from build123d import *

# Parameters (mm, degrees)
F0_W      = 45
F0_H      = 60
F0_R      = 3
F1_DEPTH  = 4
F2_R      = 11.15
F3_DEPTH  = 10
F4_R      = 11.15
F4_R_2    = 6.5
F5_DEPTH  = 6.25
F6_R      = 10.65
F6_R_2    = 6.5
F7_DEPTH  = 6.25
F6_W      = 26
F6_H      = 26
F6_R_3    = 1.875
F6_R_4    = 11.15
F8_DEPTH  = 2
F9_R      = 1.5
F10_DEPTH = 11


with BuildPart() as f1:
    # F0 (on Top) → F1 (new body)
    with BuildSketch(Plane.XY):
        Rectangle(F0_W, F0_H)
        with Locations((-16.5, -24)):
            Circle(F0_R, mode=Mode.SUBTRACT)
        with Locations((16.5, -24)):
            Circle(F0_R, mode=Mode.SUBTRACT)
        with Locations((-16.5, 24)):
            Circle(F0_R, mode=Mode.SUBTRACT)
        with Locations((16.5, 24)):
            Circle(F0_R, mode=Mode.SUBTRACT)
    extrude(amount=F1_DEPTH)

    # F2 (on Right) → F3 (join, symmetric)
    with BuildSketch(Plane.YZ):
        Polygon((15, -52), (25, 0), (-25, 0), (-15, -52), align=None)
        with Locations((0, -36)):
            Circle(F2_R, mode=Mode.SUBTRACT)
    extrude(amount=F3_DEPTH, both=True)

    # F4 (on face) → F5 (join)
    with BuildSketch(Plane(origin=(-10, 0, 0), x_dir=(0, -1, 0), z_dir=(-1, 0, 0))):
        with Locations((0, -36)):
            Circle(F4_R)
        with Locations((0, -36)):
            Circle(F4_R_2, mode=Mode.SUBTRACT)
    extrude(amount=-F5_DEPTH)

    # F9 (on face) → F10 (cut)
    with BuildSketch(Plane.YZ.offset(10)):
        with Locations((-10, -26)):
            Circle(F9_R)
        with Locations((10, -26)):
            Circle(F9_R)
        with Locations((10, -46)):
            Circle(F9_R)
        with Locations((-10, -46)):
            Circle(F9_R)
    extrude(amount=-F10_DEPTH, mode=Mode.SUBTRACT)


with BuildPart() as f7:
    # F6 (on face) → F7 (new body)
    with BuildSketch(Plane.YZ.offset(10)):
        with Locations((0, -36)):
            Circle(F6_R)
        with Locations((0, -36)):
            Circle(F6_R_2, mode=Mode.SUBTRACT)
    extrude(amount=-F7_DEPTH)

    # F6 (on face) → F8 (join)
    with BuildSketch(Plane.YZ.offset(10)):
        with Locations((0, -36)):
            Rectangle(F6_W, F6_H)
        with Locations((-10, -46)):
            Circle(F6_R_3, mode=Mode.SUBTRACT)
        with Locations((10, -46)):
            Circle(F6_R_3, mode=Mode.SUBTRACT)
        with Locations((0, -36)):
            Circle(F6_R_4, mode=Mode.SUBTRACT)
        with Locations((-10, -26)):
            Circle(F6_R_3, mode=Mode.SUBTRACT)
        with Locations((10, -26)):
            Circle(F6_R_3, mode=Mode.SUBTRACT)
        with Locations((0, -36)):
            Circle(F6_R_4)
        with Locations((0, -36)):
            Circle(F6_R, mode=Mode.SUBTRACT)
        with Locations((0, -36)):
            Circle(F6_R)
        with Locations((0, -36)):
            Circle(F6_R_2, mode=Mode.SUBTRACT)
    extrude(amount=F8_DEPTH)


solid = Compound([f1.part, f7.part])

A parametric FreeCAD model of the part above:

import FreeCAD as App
import Part
import Sketcher
Q = App.Units.Quantity


def add_polygon(sketch, points):
    """Adds a closed chain of lines whose ends are joined by coincident constraints."""
    first, n = sketch.GeometryCount, len(points)
    for a, b in zip(points, points[1:] + points[:1]):
        sketch.addGeometry(Part.LineSegment(App.Vector(*a, 0), App.Vector(*b, 0)), False)
    for i in range(n):
        sketch.addConstraint(Sketcher.Constraint("Coincident", first + i, 2, first + (i + 1) % n, 1))

doc = App.newDocument("Part")
body = doc.addObject("PartDesign::Body", "Body")

# Sketch on XY plane
sketch1 = body.newObject("Sketcher::SketchObject", "Sketch")
sketch1.AttachmentSupport = (doc.getObject("XY_Plane"), [""])
sketch1.MapMode = "FlatFace"
add_polygon(sketch1, [(-22.5, 30), (-22.5, -30), (22.5, -30), (22.5, 30)])  # lines 0-3
sketch1.addGeometry(Part.Circle(App.Vector(-16.5, -24, 0), App.Vector(0, 0, 1), 3), False)  # 4
sketch1.addGeometry(Part.Circle(App.Vector(16.5, -24, 0), App.Vector(0, 0, 1), 3), False)  # 5
sketch1.addGeometry(Part.Circle(App.Vector(-16.5, 24, 0), App.Vector(0, 0, 1), 3), False)  # 6
sketch1.addGeometry(Part.Circle(App.Vector(16.5, 24, 0), App.Vector(0, 0, 1), 3), False)  # 7
sketch1.addConstraint([
    Sketcher.Constraint("Vertical", 0),
    Sketcher.Constraint("Horizontal", 1),
    Sketcher.Constraint("Vertical", 2),
    Sketcher.Constraint("Horizontal", 3),
    Sketcher.Constraint("Equal", 4, 5),
    Sketcher.Constraint("Equal", 5, 6),
    Sketcher.Constraint("Equal", 6, 7),
    Sketcher.Constraint("Symmetric", 5, 3, 6, 3, -1, 1),
    Sketcher.Constraint("Symmetric", 4, 3, 7, 3, -1, 1),
    Sketcher.Constraint("Symmetric", 0, 2, 2, 2, -1, 1),
    Sketcher.Constraint("Symmetric", 4, 3, 5, 3, -2),
    Sketcher.Constraint("Diameter", 4, Q("6 mm")),
    Sketcher.Constraint("DistanceX", 1, 1, 1, 2, Q("45 mm")),
    Sketcher.Constraint("DistanceY", 0, 2, 0, 1, Q("60 mm")),
    Sketcher.Constraint("DistanceY", 4, 3, -1, 1, Q("24 mm")),
    Sketcher.Constraint("DistanceX", 4, 3, 5, 3, Q("33 mm")),
])
pad1 = body.newObject("PartDesign::Pad", "Pad")
pad1.Profile = sketch1
pad1.Length = 4

# Sketch on YZ plane
sketch2 = body.newObject("Sketcher::SketchObject", "Sketch001")
sketch2.AttachmentSupport = (doc.getObject("YZ_Plane"), [""])
sketch2.MapMode = "FlatFace"
add_polygon(sketch2, [(15, -52), (25, 0), (-25, 0), (-15, -52)])  # lines 0-3
sketch2.addGeometry(Part.Circle(App.Vector(0, -36, 0), App.Vector(0, 0, 1), 11.15), False)  # 4
sketch2.addConstraint([
    Sketcher.Constraint("Horizontal", 1),
    Sketcher.Constraint("Horizontal", 3),
    Sketcher.Constraint("Symmetric", 0, 2, 1, 2, -1, 1),
    Sketcher.Constraint("PointOnObject", 4, 3, -2),
    Sketcher.Constraint("Equal", 0, 2),
    Sketcher.Constraint("Diameter", 4, Q("22.3 mm")),
    Sketcher.Constraint("DistanceX", 1, 2, 1, 1, Q("50 mm")),
    Sketcher.Constraint("DistanceX", 3, 1, 3, 2, Q("30 mm")),
    Sketcher.Constraint("DistanceY", 4, 3, -1, 1, Q("36 mm")),
    Sketcher.Constraint("DistanceY", 2, 2, -1, 1, Q("52 mm")),
])
pad2 = body.newObject("PartDesign::Pad", "Pad001")
pad2.Profile = sketch2
pad2.Length = 20
pad2.Midplane = True

# Sketch on YZ plane
sketch3 = body.newObject("Sketcher::SketchObject", "Sketch002")
sketch3.AttachmentSupport = (doc.getObject("YZ_Plane"), [""])
sketch3.MapMode = "FlatFace"
sketch3.AttachmentOffset = App.Placement(App.Vector(0, 0, -10), App.Rotation())
sketch3.addGeometry([
    Part.Circle(App.Vector(0, -36, 0), App.Vector(0, 0, 1), 11.15),
    Part.Circle(App.Vector(0, -36, 0), App.Vector(0, 0, 1), 6.5),
], False)
sketch3.addConstraint([
    Sketcher.Constraint("Coincident", 1, 3, 0, 3),
    Sketcher.Constraint("PointOnObject", 0, 3, -2),
    Sketcher.Constraint("Diameter", 1, Q("13 mm")),
    Sketcher.Constraint("Diameter", 0, Q("22.3 mm")),
    Sketcher.Constraint("DistanceY", 0, 3, -1, 1, Q("36 mm")),
])
pad3 = body.newObject("PartDesign::Pad", "Pad002")
pad3.Profile = sketch3
pad3.Length = 6.25

# Sketch on YZ plane
sketch4 = body.newObject("Sketcher::SketchObject", "Sketch003")
sketch4.AttachmentSupport = (doc.getObject("YZ_Plane"), [""])
sketch4.MapMode = "FlatFace"
sketch4.AttachmentOffset = App.Placement(App.Vector(0, 0, 10), App.Rotation())
sketch4.addGeometry([
    Part.Circle(App.Vector(-10, -26, 0), App.Vector(0, 0, 1), 1.5),
    Part.Circle(App.Vector(10, -26, 0), App.Vector(0, 0, 1), 1.5),
    Part.Circle(App.Vector(10, -46, 0), App.Vector(0, 0, 1), 1.5),
    Part.Circle(App.Vector(-10, -46, 0), App.Vector(0, 0, 1), 1.5),
], False)
sketch4.addConstraint([
    Sketcher.Constraint("Equal", 0, 1),
    Sketcher.Constraint("Equal", 1, 2),
    Sketcher.Constraint("Equal", 2, 3),
    Sketcher.Constraint("Symmetric", 0, 3, 1, 3, -2),
    Sketcher.Constraint("Symmetric", 2, 3, 3, 3, -2),
    Sketcher.Constraint("Vertical", 1, 3, 2, 3),
    Sketcher.Constraint("Diameter", 0, Q("3 mm")),
    Sketcher.Constraint("DistanceX", 0, 3, -1, 1, Q("10 mm")),
    Sketcher.Constraint("DistanceY", 0, 3, -1, 1, Q("26 mm")),
    Sketcher.Constraint("DistanceY", 2, 3, -1, 1, Q("46 mm")),
])
pocket1 = body.newObject("PartDesign::Pocket", "Pocket")
pocket1.Profile = sketch4
pocket1.Length = 11
body2 = doc.addObject("PartDesign::Body", "Body001")

# Sketch on YZ plane
sketch5 = body2.newObject("Sketcher::SketchObject", "Sketch004")
sketch5.AttachmentSupport = (doc.getObject("YZ_Plane001"), [""])
sketch5.MapMode = "FlatFace"
sketch5.AttachmentOffset = App.Placement(App.Vector(0, 0, 10), App.Rotation())
sketch5.addGeometry([
    Part.Circle(App.Vector(0, -36, 0), App.Vector(0, 0, 1), 10.65),
    Part.Circle(App.Vector(0, -36, 0), App.Vector(0, 0, 1), 6.5),
], False)
sketch5.addConstraint([
    Sketcher.Constraint("Coincident", 1, 3, 0, 3),
    Sketcher.Constraint("PointOnObject", 0, 3, -2),
    Sketcher.Constraint("Diameter", 1, Q("13 mm")),
    Sketcher.Constraint("Diameter", 0, Q("21.3 mm")),
    Sketcher.Constraint("DistanceY", 0, 3, -1, 1, Q("36 mm")),
])
pad4 = body2.newObject("PartDesign::Pad", "Pad003")
pad4.Profile = sketch5
pad4.Length = 6.25
pad4.Reversed = True

# Sketch on YZ plane
sketch6 = body2.newObject("Sketcher::SketchObject", "Sketch005")
sketch6.AttachmentSupport = (doc.getObject("YZ_Plane001"), [""])
sketch6.MapMode = "FlatFace"
sketch6.AttachmentOffset = App.Placement(App.Vector(0, 0, 10), App.Rotation())
add_polygon(sketch6, [(-13, -23), (-13, -49), (13, -49), (13, -23)])  # lines 0-3
sketch6.addGeometry(Part.Circle(App.Vector(-10, -46, 0), App.Vector(0, 0, 1), 1.875), False)  # 4
sketch6.addGeometry(Part.Circle(App.Vector(10, -46, 0), App.Vector(0, 0, 1), 1.875), False)  # 5
sketch6.addGeometry(Part.Circle(App.Vector(-10, -26, 0), App.Vector(0, 0, 1), 1.875), False)  # 6
sketch6.addGeometry(Part.Circle(App.Vector(0, -36, 0), App.Vector(0, 0, 1), 6.5), False)  # 7
sketch6.addGeometry(Part.Circle(App.Vector(10, -26, 0), App.Vector(0, 0, 1), 1.875), False)  # 8
sketch6.addConstraint([
    Sketcher.Constraint("Vertical", 0),
    Sketcher.Constraint("Horizontal", 1),
    Sketcher.Constraint("Vertical", 2),
    Sketcher.Constraint("Horizontal", 3),
    Sketcher.Constraint("Equal", 4, 5),
    Sketcher.Constraint("Equal", 5, 6),
    Sketcher.Constraint("Equal", 6, 8),
    Sketcher.Constraint("Symmetric", 4, 3, 5, 3, -2),
    Sketcher.Constraint("Symmetric", 6, 3, 8, 3, -2),
    Sketcher.Constraint("PointOnObject", 7, 3, -2),
    Sketcher.Constraint("Vertical", 4, 3, 6, 3),
    Sketcher.Constraint("Equal", 3, 0),
    Sketcher.Constraint("Diameter", 7, Q("13 mm")),
    Sketcher.Constraint("Diameter", 4, Q("3.75 mm")),
    Sketcher.Constraint("DistanceX", 1, 1, 1, 2, Q("26 mm")),
    Sketcher.Constraint("DistanceX", 4, 3, -1, 1, Q("10 mm")),
    Sketcher.Constraint("DistanceY", 4, 3, -1, 1, Q("46 mm")),
    Sketcher.Constraint("DistanceY", 6, 3, -1, 1, Q("26 mm")),
    Sketcher.Constraint("DistanceY", 7, 3, -1, 1, Q("36 mm")),
    Sketcher.Constraint("DistanceX", 0, 2, -1, 1, Q("13 mm")),
    Sketcher.Constraint("DistanceY", 0, 2, -1, 1, Q("49 mm")),
])
pad5 = body2.newObject("PartDesign::Pad", "Pad004")
pad5.Profile = sketch6
pad5.Length = 2

doc.recompute()
